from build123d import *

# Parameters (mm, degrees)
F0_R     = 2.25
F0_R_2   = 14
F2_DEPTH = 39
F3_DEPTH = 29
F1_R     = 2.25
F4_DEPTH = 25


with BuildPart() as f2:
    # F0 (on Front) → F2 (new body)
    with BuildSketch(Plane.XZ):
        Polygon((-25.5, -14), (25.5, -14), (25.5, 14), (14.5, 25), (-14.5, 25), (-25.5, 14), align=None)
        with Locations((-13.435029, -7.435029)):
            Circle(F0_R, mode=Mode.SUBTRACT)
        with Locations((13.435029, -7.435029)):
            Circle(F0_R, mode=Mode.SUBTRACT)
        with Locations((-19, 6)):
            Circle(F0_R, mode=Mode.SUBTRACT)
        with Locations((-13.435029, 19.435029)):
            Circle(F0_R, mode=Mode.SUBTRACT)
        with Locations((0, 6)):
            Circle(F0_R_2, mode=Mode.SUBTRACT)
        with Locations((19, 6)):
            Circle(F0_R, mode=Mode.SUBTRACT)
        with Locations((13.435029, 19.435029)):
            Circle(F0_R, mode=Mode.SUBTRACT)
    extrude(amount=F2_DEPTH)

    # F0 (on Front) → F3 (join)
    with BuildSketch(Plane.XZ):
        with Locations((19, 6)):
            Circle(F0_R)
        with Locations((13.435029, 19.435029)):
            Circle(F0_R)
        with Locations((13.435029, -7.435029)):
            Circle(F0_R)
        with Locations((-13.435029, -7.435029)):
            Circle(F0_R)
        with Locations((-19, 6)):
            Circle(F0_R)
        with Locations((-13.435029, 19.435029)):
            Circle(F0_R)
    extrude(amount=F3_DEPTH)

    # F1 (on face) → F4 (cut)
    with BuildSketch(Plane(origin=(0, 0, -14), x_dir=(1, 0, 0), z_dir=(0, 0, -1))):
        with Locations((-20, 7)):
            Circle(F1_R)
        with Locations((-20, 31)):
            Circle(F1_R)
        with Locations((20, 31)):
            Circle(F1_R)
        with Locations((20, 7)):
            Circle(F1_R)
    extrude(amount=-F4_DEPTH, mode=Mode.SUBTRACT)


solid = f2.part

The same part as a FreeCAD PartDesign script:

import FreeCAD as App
import Part
import Sketcher

V = App.Vector
Q = App.Units.Quantity

doc = App.newDocument("Part")
body = doc.addObject("PartDesign::Body", "Body")

# Sketch on XZ plane
sketch1 = doc.addObject("Sketcher::SketchObject", "Sketch")
body.addObject(sketch1)
sketch1.AttachmentSupport = (doc.XZ_Plane, [""])
sketch1.MapMode = "FlatFace"
sketch1.addGeometry([
    Part.LineSegment(V(-25.5, -14, 0), V(25.5, -14, 0)),  # 0
    Part.LineSegment(V(25.5, -14, 0), V(25.5, 14, 0)),  # 1
    Part.LineSegment(V(25.5, 14, 0), V(14.5, 25, 0)),  # 2
    Part.LineSegment(V(14.5, 25, 0), V(-14.5, 25, 0)),  # 3
    Part.LineSegment(V(-14.5, 25, 0), V(-25.5, 14, 0)),  # 4
    Part.LineSegment(V(-25.5, 14, 0), V(-25.5, -14, 0)),  # 5
    Part.Circle(V(-13.4, -7.4, 0), V(0, 0, 1), 2.2),  # 6
    Part.Circle(V(13.4, -7.4, 0), V(0, 0, 1), 2.2),  # 7
    Part.Circle(V(-19, 6, 0), V(0, 0, 1), 2.2),  # 8
    Part.Circle(V(-13.4, 19.4, 0), V(0, 0, 1), 2.2),  # 9
    Part.Circle(V(0, 6, 0), V(0, 0, 1), 14),  # 10
    Part.Circle(V(19, 6, 0), V(0, 0, 1), 2.2),  # 11
    Part.Circle(V(13.4, 19.4, 0), V(0, 0, 1), 2.2),  # 12
], False)
sketch1.addConstraint([
    Sketcher.Constraint("Coincident", 0, 2, 1, 1),
    Sketcher.Constraint("Coincident", 1, 2, 2, 1),
    Sketcher.Constraint("Coincident", 2, 2, 3, 1),
    Sketcher.Constraint("Coincident", 3, 2, 4, 1),
    Sketcher.Constraint("Coincident", 4, 2, 5, 1),
    Sketcher.Constraint("Coincident", 5, 2, 0, 1),
    Sketcher.Constraint("Horizontal", 0),
    Sketcher.Constraint("Vertical", 1),
    Sketcher.Constraint("Horizontal", 3),
    Sketcher.Constraint("Vertical", 5),
    Sketcher.Constraint("Equal", 6, 7),
    Sketcher.Constraint("Equal", 7, 8),
    Sketcher.Constraint("Equal", 8, 9),
    Sketcher.Constraint("Equal", 9, 11),
    Sketcher.Constraint("Equal", 11, 12),
    Sketcher.Constraint("Symmetric", 0, 2, 4, 2, -1, 1),
    Sketcher.Constraint("Symmetric", 6, 3, 7, 3, -2),
    Sketcher.Constraint("Symmetric", 8, 3, 11, 3, -2),
    Sketcher.Constraint("Symmetric", 9, 3, 12, 3, -2),
    Sketcher.Constraint("PointOnObject", 10, 3, -2),
    Sketcher.Constraint("Perpendicular", 2, 4),
    Sketcher.Constraint("Horizontal", 8, 3, 10, 3),
    Sketcher.Constraint("Horizontal", 1, 2, 4, 2),
    Sketcher.Constraint("Vertical", 6, 3, 9, 3),
    Sketcher.Constraint("Equal", 2, 4),
    Sketcher.Constraint("Diameter", 10, Q("28 mm")),
    Sketcher.Constraint("Diameter", 6, Q("4.5 mm")),
    Sketcher.Constraint("DistanceX", 0, 1, 0, 2, Q("51 mm")),
    Sketcher.Constraint("DistanceX", 3, 2, 3, 1, Q("29 mm")),
    Sketcher.Constraint("DistanceY", 1, 1, 1, 2, Q("28 mm")),
    Sketcher.Constraint("DistanceX", 8, 3, -1, 1, Q("19 mm")),
    Sketcher.Constraint("DistanceY", -1, 1, 8, 3, Q("6 mm")),
    Sketcher.Constraint("DistanceX", 6, 3, -1, 1, Q("13.435029 mm")),
    Sketcher.Constraint("DistanceY", 6, 3, -1, 1, Q("7.435029 mm")),
    Sketcher.Constraint("DistanceY", -1, 1, 9, 3, Q("19.435029 mm")),
])
pad1 = doc.addObject("PartDesign::Pad", "Pad")
body.addObject(pad1)
pad1.Profile = sketch1
pad1.Length = 39

# Sketch on XZ plane
sketch2 = doc.addObject("Sketcher::SketchObject", "Sketch001")
body.addObject(sketch2)
sketch2.AttachmentSupport = (doc.XZ_Plane, [""])
sketch2.MapMode = "FlatFace"
sketch2.addGeometry([
    Part.Circle(V(19, 6, 0), V(0, 0, 1), 2.2),  # 0
    Part.Circle(V(13.4, 19.4, 0), V(0, 0, 1), 2.2),  # 1
    Part.Circle(V(13.4, -7.4, 0), V(0, 0, 1), 2.2),  # 2
    Part.Circle(V(-13.4, -7.4, 0), V(0, 0, 1), 2.2),  # 3
    Part.Circle(V(-19, 6, 0), V(0, 0, 1), 2.2),  # 4
    Part.Circle(V(-13.4, 19.4, 0), V(0, 0, 1), 2.2),  # 5
], False)
sketch2.addConstraint([
    Sketcher.Constraint("Equal", 0, 1),
    Sketcher.Constraint("Equal", 1, 2),
    Sketcher.Constraint("Equal", 2, 3),
    Sketcher.Constraint("Equal", 3, 4),
    Sketcher.Constraint("Equal", 4, 5),
    Sketcher.Constraint("Symmetric", 2, 3, 3, 3, -2),
    Sketcher.Constraint("Symmetric", 0, 3, 4, 3, -2),
    Sketcher.Constraint("Symmetric", 1, 3, 5, 3, -2),
    Sketcher.Constraint("Vertical", 1, 3, 2, 3),
    Sketcher.Constraint("Diameter", 0, Q("4.5 mm")),
    Sketcher.Constraint("DistanceX", -1, 1, 0, 3, Q("19 mm")),
    Sketcher.Constraint("DistanceY", -1, 1, 0, 3, Q("6 mm")),
    Sketcher.Constraint("DistanceX", -1, 1, 1, 3, Q("13.435029 mm")),
    Sketcher.Constraint("DistanceY", -1, 1, 1, 3, Q("19.435029 mm")),
    Sketcher.Constraint("DistanceY", 2, 3, -1, 1, Q("7.435029 mm")),
])
pad2 = doc.addObject("PartDesign::Pad", "Pad001")
body.addObject(pad2)
pad2.Profile = sketch2
pad2.Length = 29

# Sketch on XY plane
sketch3 = doc.addObject("Sketcher::SketchObject", "Sketch002")
body.addObject(sketch3)
sketch3.AttachmentSupport = (doc.XY_Plane, [""])
sketch3.MapMode = "FlatFace"
sketch3.AttachmentOffset = App.Placement(V(0, 0, -14), App.Rotation())
sketch3.addGeometry([
    Part.Circle(V(-20, -7, 0), V(0, 0, 1), 2.2),
    Part.Circle(V(-20, -31, 0), V(0, 0, 1), 2.2),
    Part.Circle(V(20, -31, 0), V(0, 0, 1), 2.2),
    Part.Circle(V(20, -7, 0), V(0, 0, 1), 2.2),
], False)
sketch3.addConstraint([
    Sketcher.Constraint("Equal", 0, 1),
    Sketcher.Constraint("Equal", 1, 2),
    Sketcher.Constraint("Equal", 2, 3),
    Sketcher.Constraint("Symmetric", 1, 3, 2, 3, -2),
    Sketcher.Constraint("Symmetric", 0, 3, 3, 3, -2),
    Sketcher.Constraint("Vertical", 0, 3, 1, 3),
    Sketcher.Constraint("Diameter", 0, Q("4.5 mm")),
    Sketcher.Constraint("DistanceX", 0, 3, -1, 1, Q("20 mm")),
    Sketcher.Constraint("DistanceY", 0, 3, -1, 1, Q("7 mm")),
    Sketcher.Constraint("DistanceY", 1, 3, -1, 1, Q("31 mm")),
])
pocket1 = doc.addObject("PartDesign::Pocket", "Pocket")
body.addObject(pocket1)
pocket1.Profile = sketch3
pocket1.Length = 25
pocket1.Reversed = True

doc.recompute()
